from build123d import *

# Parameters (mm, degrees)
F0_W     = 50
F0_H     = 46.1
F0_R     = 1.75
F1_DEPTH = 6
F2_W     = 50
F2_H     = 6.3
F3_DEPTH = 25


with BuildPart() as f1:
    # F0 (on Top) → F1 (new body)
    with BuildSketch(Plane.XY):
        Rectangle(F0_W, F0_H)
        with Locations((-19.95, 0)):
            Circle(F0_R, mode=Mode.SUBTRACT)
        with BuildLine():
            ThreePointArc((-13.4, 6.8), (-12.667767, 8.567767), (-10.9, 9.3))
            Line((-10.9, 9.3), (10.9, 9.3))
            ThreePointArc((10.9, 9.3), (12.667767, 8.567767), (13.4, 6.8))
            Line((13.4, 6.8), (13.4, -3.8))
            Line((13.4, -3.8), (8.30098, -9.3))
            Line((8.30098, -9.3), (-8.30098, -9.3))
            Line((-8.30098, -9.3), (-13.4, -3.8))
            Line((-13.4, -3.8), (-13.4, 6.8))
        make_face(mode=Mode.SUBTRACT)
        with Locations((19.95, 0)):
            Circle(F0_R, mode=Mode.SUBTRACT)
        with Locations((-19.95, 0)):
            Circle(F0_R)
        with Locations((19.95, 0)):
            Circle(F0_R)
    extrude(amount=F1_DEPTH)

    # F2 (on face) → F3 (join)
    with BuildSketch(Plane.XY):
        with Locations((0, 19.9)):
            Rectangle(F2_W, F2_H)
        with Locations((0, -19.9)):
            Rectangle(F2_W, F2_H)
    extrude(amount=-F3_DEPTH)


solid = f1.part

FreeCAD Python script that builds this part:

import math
import FreeCAD as App
import Part
import Sketcher
from FreeCAD import Vector


def add_polygon(sketch, points):
    """Adds a closed chain of lines whose ends are joined by coincident constraints."""
    first, n = sketch.GeometryCount, len(points)
    for a, b in zip(points, points[1:] + points[:1]):
        sketch.addGeometry(Part.LineSegment(App.Vector(*a, 0), App.Vector(*b, 0)), False)
    for i in range(n):
        sketch.addConstraint(Sketcher.Constraint("Coincident", first + i, 2, first + (i + 1) % n, 1))

doc = App.newDocument("Part")
body = doc.addObject("PartDesign::Body", "Body")

sketch1 = body.newObject("Sketcher::SketchObject", "Sketch")
sketch1.AttachmentSupport = (doc.getObject("XY_Plane"), [""])
sketch1.MapMode = "FlatFace"
add_polygon(sketch1, [(-25, 23.1), (-25, -23.1), (25, -23.1), (25, 23.1)])
sketch1.addGeometry(Part.LineSegment(Vector(-13.4, -3.8, 0), Vector(-13.4, 6.8, 0)), False)
sketch1.addGeometry(Part.ArcOfCircle(Part.Circle(Vector(-10.9, 6.8, 0), Vector(0, 0, 1), 2.5), math.radians(90), math.radians(180)), False)
sketch1.addGeometry(Part.LineSegment(Vector(-10.9, 9.3, 0), Vector(10.9, 9.3, 0)), False)
sketch1.addGeometry(Part.ArcOfCircle(Part.Circle(Vector(10.9, 6.8, 0), Vector(0, 0, 1), 2.5), math.radians(0), math.radians(90)), False)
sketch1.addGeometry(Part.LineSegment(Vector(13.4, 6.8, 0), Vector(13.4, -3.8, 0)), False)
sketch1.addGeometry(Part.LineSegment(Vector(13.4, -3.8, 0), Vector(8.3, -9.3, 0)), False)
sketch1.addGeometry(Part.LineSegment(Vector(8.3, -9.3, 0), Vector(-8.3, -9.3, 0)), False)
sketch1.addGeometry(Part.LineSegment(Vector(-8.3, -9.3, 0), Vector(-13.4, -3.8, 0)), False)
sketch1.addConstraint([
    Sketcher.Constraint("Tangent", 4, 2, 5, 2),
    Sketcher.Constraint("Tangent", 5, 1, 6, 1),
    Sketcher.Constraint("Tangent", 6, 2, 7, 2),
    Sketcher.Constraint("Tangent", 7, 1, 8, 1),
    Sketcher.Constraint("Coincident", 8, 2, 9, 1),
    Sketcher.Constraint("Coincident", 9, 2, 10, 1),
    Sketcher.Constraint("Coincident", 10, 2, 11, 1),
    Sketcher.Constraint("Coincident", 11, 2, 4, 1),
    Sketcher.Constraint("Vertical", 0),
    Sketcher.Constraint("Horizontal", 1),
    Sketcher.Constraint("Vertical", 2),
    Sketcher.Constraint("Horizontal", 3),
    Sketcher.Constraint("Vertical", 4),
    Sketcher.Constraint("Horizontal", 6),
    Sketcher.Constraint("Vertical", 8),
    Sketcher.Constraint("Horizontal", 10),
    Sketcher.Constraint("Equal", 5, 7),
    Sketcher.Constraint("Symmetric", 0, 2, 2, 2, -1, 1),
    Sketcher.Constraint("Symmetric", 8, 2, 11, 2, -2),
    Sketcher.Constraint("Equal", 9, 11),
    Sketcher.Constraint("Radius", 5, 2.5),
    Sketcher.Constraint("DistanceX", 1, 1, 1, 2, 50.0),
    Sketcher.Constraint("DistanceX", 6, 1, 6, 2, 21.8),
    Sketcher.Constraint("DistanceY", 0, 2, 0, 1, 46.1),
    Sketcher.Constraint("DistanceY", 4, 1, 4, 2, 10.6),
    Sketcher.Constraint("Distance", 9, 7.5),
    Sketcher.Constraint("DistanceY", -1, 1, 5, 3, 6.8),
    Sketcher.Constraint("DistanceY", 9, 2, -1, 1, 9.3),
])
pad1 = body.newObject("PartDesign::Pad", "Pad")
pad1.Profile = sketch1
pad1.Length = 6

sketch2 = body.newObject("Sketcher::SketchObject", "Sketch001")
sketch2.AttachmentSupport = (doc.getObject("XY_Plane"), [""])
sketch2.MapMode = "FlatFace"
add_polygon(sketch2, [(-25, 23), (-25, 17), (25, 17), (25, 23)])
add_polygon(sketch2, [(-25, -17), (-25, -23), (25, -23), (25, -17)])
sketch2.addConstraint([
    Sketcher.Constraint("Vertical", 0),
    Sketcher.Constraint("Horizontal", 1),
    Sketcher.Constraint("Vertical", 2),
    Sketcher.Constraint("Horizontal", 3),
    Sketcher.Constraint("Vertical", 4),
    Sketcher.Constraint("Horizontal", 5),
    Sketcher.Constraint("Vertical", 6),
    Sketcher.Constraint("Horizontal", 7),
    Sketcher.Constraint("Symmetric", 2, 2, 4, 2, -1, 1),
    Sketcher.Constraint("Symmetric", 0, 2, 6, 2, -1, 1),
    Sketcher.Constraint("Vertical", 3, 2, 4, 2),
    Sketcher.Constraint("DistanceX", 1, 1, 1, 2, 50.0),
    Sketcher.Constraint("DistanceY", 0, 2, 0, 1, 6.3),
    Sketcher.Constraint("DistanceY", 4, 2, 0, 2, 39.8),
])
pad2 = body.newObject("PartDesign::Pad", "Pad001")
pad2.Profile = sketch2
pad2.Length = 25
pad2.Reversed = True

doc.recompute()
